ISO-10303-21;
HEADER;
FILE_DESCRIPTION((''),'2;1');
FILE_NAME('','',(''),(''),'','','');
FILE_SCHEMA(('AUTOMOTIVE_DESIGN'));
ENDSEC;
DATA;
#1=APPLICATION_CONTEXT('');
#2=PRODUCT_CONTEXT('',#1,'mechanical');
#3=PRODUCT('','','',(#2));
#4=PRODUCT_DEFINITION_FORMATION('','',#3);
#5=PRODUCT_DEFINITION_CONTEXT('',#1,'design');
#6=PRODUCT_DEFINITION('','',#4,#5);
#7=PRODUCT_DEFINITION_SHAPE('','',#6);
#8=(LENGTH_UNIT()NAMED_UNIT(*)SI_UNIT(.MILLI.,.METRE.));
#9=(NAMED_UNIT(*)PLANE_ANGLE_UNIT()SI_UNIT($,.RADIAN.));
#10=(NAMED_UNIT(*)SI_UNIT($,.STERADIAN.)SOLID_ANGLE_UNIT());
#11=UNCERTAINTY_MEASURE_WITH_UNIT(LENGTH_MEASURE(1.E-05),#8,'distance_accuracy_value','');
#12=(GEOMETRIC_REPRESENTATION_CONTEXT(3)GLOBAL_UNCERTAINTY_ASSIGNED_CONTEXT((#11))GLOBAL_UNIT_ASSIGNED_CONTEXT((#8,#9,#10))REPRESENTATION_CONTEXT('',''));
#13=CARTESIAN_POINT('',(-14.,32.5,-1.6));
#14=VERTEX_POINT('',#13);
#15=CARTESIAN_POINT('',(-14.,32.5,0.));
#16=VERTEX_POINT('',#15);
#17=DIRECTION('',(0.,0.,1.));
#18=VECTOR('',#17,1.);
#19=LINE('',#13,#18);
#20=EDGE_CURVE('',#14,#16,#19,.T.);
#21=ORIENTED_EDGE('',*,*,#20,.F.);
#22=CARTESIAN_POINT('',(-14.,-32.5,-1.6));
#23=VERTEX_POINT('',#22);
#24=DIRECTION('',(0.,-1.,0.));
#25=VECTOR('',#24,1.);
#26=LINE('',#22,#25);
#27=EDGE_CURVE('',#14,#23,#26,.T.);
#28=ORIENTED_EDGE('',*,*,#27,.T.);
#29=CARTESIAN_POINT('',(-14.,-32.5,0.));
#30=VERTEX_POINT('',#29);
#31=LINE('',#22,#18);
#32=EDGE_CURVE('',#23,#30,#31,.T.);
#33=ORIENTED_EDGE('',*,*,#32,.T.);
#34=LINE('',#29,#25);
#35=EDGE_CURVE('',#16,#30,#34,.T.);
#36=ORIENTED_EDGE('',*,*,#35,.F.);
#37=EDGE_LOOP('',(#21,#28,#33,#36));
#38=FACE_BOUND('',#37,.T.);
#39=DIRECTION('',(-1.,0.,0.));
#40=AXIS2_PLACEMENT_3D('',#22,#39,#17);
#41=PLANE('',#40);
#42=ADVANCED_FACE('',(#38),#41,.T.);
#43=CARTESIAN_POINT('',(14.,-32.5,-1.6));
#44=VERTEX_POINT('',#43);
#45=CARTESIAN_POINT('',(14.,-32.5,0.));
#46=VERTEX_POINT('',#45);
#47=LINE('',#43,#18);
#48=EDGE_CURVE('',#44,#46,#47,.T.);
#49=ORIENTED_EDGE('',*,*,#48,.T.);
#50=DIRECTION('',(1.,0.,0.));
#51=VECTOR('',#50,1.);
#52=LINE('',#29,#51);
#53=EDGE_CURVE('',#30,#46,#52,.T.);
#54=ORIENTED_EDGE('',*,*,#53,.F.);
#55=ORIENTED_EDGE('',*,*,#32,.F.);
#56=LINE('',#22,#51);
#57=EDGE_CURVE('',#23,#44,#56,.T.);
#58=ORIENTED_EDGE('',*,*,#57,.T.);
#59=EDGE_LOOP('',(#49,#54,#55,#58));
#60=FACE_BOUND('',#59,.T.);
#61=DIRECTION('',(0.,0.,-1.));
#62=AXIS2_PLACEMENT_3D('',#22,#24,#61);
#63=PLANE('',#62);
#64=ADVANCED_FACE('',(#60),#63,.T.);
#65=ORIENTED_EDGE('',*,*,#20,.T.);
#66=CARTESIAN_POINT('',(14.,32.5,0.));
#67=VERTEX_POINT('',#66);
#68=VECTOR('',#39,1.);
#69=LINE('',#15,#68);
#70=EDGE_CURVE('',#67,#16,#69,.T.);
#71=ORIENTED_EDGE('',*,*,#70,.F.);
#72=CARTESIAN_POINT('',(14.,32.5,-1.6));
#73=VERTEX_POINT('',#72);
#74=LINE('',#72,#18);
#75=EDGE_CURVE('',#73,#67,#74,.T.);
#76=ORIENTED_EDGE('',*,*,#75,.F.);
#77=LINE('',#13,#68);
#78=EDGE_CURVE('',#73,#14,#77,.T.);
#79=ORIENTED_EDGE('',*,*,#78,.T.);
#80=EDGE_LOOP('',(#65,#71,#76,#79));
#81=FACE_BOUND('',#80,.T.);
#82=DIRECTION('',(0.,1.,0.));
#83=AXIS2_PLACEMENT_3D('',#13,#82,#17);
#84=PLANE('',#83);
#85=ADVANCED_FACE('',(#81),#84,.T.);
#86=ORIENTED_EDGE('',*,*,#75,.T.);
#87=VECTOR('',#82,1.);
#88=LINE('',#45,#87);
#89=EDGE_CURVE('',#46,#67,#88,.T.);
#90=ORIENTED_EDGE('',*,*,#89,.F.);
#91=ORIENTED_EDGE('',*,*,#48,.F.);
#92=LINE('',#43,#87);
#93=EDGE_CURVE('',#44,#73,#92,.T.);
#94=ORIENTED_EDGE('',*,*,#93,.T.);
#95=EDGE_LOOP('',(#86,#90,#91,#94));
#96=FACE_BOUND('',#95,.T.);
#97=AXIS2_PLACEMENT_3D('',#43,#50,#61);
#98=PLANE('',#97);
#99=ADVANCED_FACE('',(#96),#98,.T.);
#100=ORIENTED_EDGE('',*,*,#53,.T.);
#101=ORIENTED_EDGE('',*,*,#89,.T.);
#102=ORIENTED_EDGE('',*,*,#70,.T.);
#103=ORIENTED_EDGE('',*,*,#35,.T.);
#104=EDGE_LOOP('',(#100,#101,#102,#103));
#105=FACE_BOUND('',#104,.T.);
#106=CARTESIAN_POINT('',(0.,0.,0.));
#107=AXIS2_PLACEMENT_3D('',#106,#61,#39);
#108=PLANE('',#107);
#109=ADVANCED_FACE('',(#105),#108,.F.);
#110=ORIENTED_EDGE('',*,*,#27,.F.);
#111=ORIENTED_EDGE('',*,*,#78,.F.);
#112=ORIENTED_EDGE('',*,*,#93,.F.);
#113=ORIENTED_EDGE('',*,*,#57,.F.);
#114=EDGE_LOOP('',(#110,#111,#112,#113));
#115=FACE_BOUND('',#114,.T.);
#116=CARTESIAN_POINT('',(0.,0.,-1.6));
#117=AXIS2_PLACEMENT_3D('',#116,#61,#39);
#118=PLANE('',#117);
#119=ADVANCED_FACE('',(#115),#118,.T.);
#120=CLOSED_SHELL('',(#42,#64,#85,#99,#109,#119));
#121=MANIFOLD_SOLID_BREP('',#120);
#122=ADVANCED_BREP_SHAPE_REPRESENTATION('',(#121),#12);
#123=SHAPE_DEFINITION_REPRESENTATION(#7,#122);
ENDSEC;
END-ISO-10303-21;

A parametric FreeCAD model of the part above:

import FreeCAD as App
import Part
import Sketcher


def add_polygon(sketch, points):
    """Adds a closed chain of lines whose ends are joined by coincident constraints."""
    first, n = sketch.GeometryCount, len(points)
    for a, b in zip(points, points[1:] + points[:1]):
        sketch.addGeometry(Part.LineSegment(App.Vector(*a, 0), App.Vector(*b, 0)), False)
    for i in range(n):
        sketch.addConstraint(Sketcher.Constraint("Coincident", first + i, 2, first + (i + 1) % n, 1))

doc = App.newDocument("Part")
body = doc.addObject("PartDesign::Body", "Body")

sketch1 = body.newObject("Sketcher::SketchObject", "Sketch")
sketch1.AttachmentSupport = (doc.getObject("XY_Plane"), [""])
sketch1.MapMode = "FlatFace"
add_polygon(sketch1, [(-14, 32.5), (-14, -32.5), (14, -32.5), (14, 32.5)])
sketch1.addConstraint([
    Sketcher.Constraint("Vertical", 0),
    Sketcher.Constraint("Horizontal", 1),
    Sketcher.Constraint("Vertical", 2),
    Sketcher.Constraint("Horizontal", 3),
    Sketcher.Constraint("Symmetric", 0, 2, 2, 2, -1, 1),
    Sketcher.Constraint("DistanceX", 1, 1, 1, 2, 28.0),
    Sketcher.Constraint("DistanceY", 0, 2, 0, 1, 65.0),
])
pad1 = body.newObject("PartDesign::Pad", "Pad")
pad1.Profile = sketch1
pad1.Length = 1.6
pad1.Reversed = True

doc.recompute()
